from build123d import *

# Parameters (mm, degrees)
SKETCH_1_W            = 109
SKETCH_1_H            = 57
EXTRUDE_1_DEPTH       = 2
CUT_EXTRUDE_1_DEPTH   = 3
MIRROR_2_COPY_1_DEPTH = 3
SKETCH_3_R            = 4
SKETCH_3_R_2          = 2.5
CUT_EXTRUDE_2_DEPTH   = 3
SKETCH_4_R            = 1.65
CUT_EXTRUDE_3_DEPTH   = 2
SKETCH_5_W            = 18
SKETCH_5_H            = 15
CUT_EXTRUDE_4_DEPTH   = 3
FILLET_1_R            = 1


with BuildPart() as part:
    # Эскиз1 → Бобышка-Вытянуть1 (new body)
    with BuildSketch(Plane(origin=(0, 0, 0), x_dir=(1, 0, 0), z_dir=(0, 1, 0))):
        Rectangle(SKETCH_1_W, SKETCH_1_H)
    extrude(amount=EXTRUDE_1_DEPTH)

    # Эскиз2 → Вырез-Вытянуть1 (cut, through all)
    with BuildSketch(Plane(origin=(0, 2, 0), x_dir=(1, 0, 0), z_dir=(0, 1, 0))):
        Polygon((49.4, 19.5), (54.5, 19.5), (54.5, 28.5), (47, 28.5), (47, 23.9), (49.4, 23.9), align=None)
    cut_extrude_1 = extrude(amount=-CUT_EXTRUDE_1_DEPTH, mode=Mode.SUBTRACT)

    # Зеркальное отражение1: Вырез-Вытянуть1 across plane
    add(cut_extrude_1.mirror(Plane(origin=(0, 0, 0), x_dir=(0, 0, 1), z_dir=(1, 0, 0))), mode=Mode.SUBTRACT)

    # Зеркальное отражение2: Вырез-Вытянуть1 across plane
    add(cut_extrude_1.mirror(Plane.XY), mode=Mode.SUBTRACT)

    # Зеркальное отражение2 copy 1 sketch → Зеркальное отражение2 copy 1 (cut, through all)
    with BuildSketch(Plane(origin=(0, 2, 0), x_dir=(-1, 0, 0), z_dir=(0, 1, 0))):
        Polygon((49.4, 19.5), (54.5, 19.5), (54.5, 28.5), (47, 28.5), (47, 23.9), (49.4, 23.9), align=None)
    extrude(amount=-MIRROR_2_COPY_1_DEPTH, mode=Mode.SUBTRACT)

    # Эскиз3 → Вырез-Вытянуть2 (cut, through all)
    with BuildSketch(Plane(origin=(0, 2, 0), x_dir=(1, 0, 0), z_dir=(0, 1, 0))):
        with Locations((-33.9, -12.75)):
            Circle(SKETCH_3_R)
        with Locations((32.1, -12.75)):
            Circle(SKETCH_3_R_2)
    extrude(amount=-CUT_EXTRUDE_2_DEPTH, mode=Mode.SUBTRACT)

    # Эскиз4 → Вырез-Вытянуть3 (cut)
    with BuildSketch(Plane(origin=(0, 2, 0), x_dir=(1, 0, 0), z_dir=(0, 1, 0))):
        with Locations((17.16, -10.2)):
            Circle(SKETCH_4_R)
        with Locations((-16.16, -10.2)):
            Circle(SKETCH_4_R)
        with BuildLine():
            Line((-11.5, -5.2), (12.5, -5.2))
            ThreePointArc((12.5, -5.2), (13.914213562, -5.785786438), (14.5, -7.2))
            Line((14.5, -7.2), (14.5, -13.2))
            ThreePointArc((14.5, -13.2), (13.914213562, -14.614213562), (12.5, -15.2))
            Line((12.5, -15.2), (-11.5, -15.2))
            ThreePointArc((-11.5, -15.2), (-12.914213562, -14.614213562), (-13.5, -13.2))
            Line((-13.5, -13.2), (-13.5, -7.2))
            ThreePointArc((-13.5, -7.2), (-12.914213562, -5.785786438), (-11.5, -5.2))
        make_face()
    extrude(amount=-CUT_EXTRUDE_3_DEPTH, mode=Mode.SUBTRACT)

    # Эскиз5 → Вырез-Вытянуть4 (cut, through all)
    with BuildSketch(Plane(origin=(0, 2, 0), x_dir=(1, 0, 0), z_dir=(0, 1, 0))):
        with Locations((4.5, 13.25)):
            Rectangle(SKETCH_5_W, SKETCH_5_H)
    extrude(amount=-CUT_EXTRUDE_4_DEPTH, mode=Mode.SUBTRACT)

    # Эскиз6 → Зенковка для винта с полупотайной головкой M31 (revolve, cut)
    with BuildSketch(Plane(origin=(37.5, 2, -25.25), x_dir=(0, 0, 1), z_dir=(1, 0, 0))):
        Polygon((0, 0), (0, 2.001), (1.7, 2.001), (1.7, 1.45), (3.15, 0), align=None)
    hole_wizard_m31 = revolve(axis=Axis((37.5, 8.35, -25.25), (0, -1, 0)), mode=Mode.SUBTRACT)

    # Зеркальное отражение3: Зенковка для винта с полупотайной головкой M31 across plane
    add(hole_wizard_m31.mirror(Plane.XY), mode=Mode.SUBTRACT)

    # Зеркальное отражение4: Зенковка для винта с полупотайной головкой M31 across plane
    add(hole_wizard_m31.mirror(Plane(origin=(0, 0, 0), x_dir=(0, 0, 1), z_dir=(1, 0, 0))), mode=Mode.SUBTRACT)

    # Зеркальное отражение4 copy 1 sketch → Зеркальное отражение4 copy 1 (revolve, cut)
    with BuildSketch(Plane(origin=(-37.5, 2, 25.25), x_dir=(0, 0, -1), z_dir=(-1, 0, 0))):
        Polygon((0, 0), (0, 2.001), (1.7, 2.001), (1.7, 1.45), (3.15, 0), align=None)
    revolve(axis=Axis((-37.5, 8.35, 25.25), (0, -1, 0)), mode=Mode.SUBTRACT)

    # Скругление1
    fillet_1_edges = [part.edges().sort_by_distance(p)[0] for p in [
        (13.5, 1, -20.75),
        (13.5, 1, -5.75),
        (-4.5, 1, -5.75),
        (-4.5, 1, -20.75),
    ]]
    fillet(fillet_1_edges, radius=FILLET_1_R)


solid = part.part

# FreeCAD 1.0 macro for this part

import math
import FreeCAD as App
import Part
import Sketcher

V = App.Vector
Q = App.Units.Quantity


def edges_at(feature, points):
    """Names of the edges that pass closest to the given points."""
    edges = feature.Shape.Edges
    near = lambda p: min(range(len(edges)), key=lambda i: edges[i].distToShape(Part.Vertex(*p))[0])
    return sorted({f"Edge{near(p) + 1}" for p in points})

doc = App.newDocument("Part")
params = doc.addObject("Spreadsheet::Sheet", "Params")
for row, (alias, value) in enumerate([
    ("sketch1_width", "109 mm"),
    ("sketch1_height", "57 mm"),
    ("pad1_length", "2 mm"),
    ("sketch2_height", "9 mm"),
    ("sketch2_width", "5.1 mm"),
    ("sketch2_width2", "7.5 mm"),
    ("sketch2_height2", "4.6 mm"),
    ("sketch3_height", "9 mm"),
    ("sketch3_width", "5.1 mm"),
    ("sketch3_width2", "7.5 mm"),
    ("sketch3_height2", "4.6 mm"),
    ("sketch4_diameter", "8 mm"),
    ("sketch4_diameter2", "5 mm"),
    ("sketch5_radius", "2 mm"),
    ("sketch5_diameter", "3.3 mm"),
    ("sketch5_width", "24 mm"),
    ("sketch5_height", "6 mm"),
    ("pocket4_length", "2 mm"),
    ("sketch6_width", "18 mm"),
    ("sketch6_height", "15 mm"),
    ("sketch7_height", "1.7 mm"),
    ("sketch7_height2", "3.15 mm"),
    ("groove_angle", "360 deg"),
    ("sketch8_height", "1.7 mm"),
    ("sketch8_height2", "3.15 mm"),
    ("groove2_angle", "360 deg"),
    ("fillet_radius", "1 mm"),
], start=1):
    params.set(f"A{row}", alias)
    params.set(f"B{row}", "=" + value)
    params.setAlias(f"B{row}", alias)

body = doc.addObject("PartDesign::Body", "Body")

# Sketch on XZ plane
sketch1 = body.newObject("Sketcher::SketchObject", "Sketch")
sketch1.AttachmentSupport = (doc.getObject("XZ_Plane"), [""])
sketch1.MapMode = "FlatFace"
sketch1.addGeometry([
    Part.LineSegment(V(-54, -28, 0), V(-54, 28, 0)),
    Part.LineSegment(V(-54, 28, 0), V(54, 28, 0)),
    Part.LineSegment(V(54, 28, 0), V(54, -28, 0)),
    Part.LineSegment(V(54, -28, 0), V(-54, -28, 0)),
], False)
sketch1.addConstraint([
    Sketcher.Constraint("Coincident", 0, 2, 1, 1),
    Sketcher.Constraint("Coincident", 1, 2, 2, 1),
    Sketcher.Constraint("Coincident", 2, 2, 3, 1),
    Sketcher.Constraint("Coincident", 3, 2, 0, 1),
    Sketcher.Constraint("Vertical", 0),
    Sketcher.Constraint("Horizontal", 1),
    Sketcher.Constraint("Vertical", 2),
    Sketcher.Constraint("Horizontal", 3),
    Sketcher.Constraint("Symmetric", 0, 2, 2, 2, -1, 1),
    Sketcher.Constraint("DistanceX", 1, 1, 1, 2, 109.0),
    Sketcher.Constraint("DistanceY", 0, 1, 0, 2, 57.0),
])
sketch1.setExpression("Constraints[9]", "Params.sketch1_width")
sketch1.setExpression("Constraints[10]", "Params.sketch1_height")
pad1 = body.newObject("PartDesign::Pad", "Pad")
pad1.Profile = sketch1
pad1.setExpression("Length", "Params.pad1_length")
pad1.Reversed = True

# Sketch on XZ plane
sketch2 = body.newObject("Sketcher::SketchObject", "Sketch001")
sketch2.AttachmentSupport = (doc.getObject("XZ_Plane"), [""])
sketch2.MapMode = "FlatFace"
sketch2.AttachmentOffset = App.Placement(V(0, 0, -2), App.Rotation())
sketch2.addGeometry([
    Part.LineSegment(V(49.4, -19.5, 0), V(54.5, -19.5, 0)),  # 0
    Part.LineSegment(V(54.5, -19.5, 0), V(54.5, -28.5, 0)),  # 1
    Part.LineSegment(V(54.5, -28.5, 0), V(47, -28.5, 0)),  # 2
    Part.LineSegment(V(47, -28.5, 0), V(47, -23.9, 0)),  # 3
    Part.LineSegment(V(47, -23.9, 0), V(49.4, -23.9, 0)),  # 4
    Part.LineSegment(V(49.4, -23.9, 0), V(49.4, -19.5, 0)),  # 5
], False)
sketch2.addConstraint([
    Sketcher.Constraint("Coincident", 0, 2, 1, 1),
    Sketcher.Constraint("Coincident", 1, 2, 2, 1),
    Sketcher.Constraint("Coincident", 2, 2, 3, 1),
    Sketcher.Constraint("Coincident", 3, 2, 4, 1),
    Sketcher.Constraint("Coincident", 4, 2, 5, 1),
    Sketcher.Constraint("Coincident", 5, 2, 0, 1),
    Sketcher.Constraint("Horizontal", 0),
    Sketcher.Constraint("Vertical", 1),
    Sketcher.Constraint("Horizontal", 2),
    Sketcher.Constraint("Vertical", 3),
    Sketcher.Constraint("Horizontal", 4),
    Sketcher.Constraint("Vertical", 5),
    Sketcher.Constraint("DistanceY", 1, 2, 1, 1, 9.0),
    Sketcher.Constraint("DistanceX", 0, 1, 0, 2, 5.1),
    Sketcher.Constraint("DistanceX", 2, 2, 2, 1, 7.5),
    Sketcher.Constraint("DistanceY", 3, 1, 3, 2, 4.6),
    Sketcher.Constraint("DistanceX", -1, 1, 2, 2, 47.0),
    Sketcher.Constraint("DistanceY", 0, 2, -1, 1, 19.5),
])
sketch2.setExpression("Constraints[12]", "Params.sketch2_height")
sketch2.setExpression("Constraints[13]", "Params.sketch2_width")
sketch2.setExpression("Constraints[14]", "Params.sketch2_width2")
sketch2.setExpression("Constraints[15]", "Params.sketch2_height2")
pocket1 = body.newObject("PartDesign::Pocket", "Pocket")
pocket1.Profile = sketch2
pocket1.Type = "ThroughAll"
pocket1.Reversed = True
doc.recompute()

mirrored = body.newObject("PartDesign::Mirrored", "Mirrored")
mirrored.Originals = [pocket1]
mirrored.MirrorPlane = (doc.getObject("YZ_Plane"), [""])
body.Tip = mirrored
doc.recompute()

mirrored2 = body.newObject("PartDesign::Mirrored", "Mirrored001")
mirrored2.Originals = [pocket1]
mirrored2.MirrorPlane = (doc.getObject("XY_Plane"), [""])
body.Tip = mirrored2

# Sketch on XZ plane
sketch3 = body.newObject("Sketcher::SketchObject", "Sketch002")
sketch3.AttachmentSupport = (doc.getObject("XZ_Plane"), [""])
sketch3.MapMode = "FlatFace"
sketch3.AttachmentOffset = App.Placement(V(0, 0, -2), App.Rotation())
sketch3.addGeometry([
    Part.LineSegment(V(-49.4, 19.5, 0), V(-54.5, 19.5, 0)),  # 0
    Part.LineSegment(V(-54.5, 19.5, 0), V(-54.5, 28.5, 0)),  # 1
    Part.LineSegment(V(-54.5, 28.5, 0), V(-47, 28.5, 0)),  # 2
    Part.LineSegment(V(-47, 28.5, 0), V(-47, 23.9, 0)),  # 3
    Part.LineSegment(V(-47, 23.9, 0), V(-49.4, 23.9, 0)),  # 4
    Part.LineSegment(V(-49.4, 23.9, 0), V(-49.4, 19.5, 0)),  # 5
], False)
sketch3.addConstraint([
    Sketcher.Constraint("Coincident", 0, 2, 1, 1),
    Sketcher.Constraint("Coincident", 1, 2, 2, 1),
    Sketcher.Constraint("Coincident", 2, 2, 3, 1),
    Sketcher.Constraint("Coincident", 3, 2, 4, 1),
    Sketcher.Constraint("Coincident", 4, 2, 5, 1),
    Sketcher.Constraint("Coincident", 5, 2, 0, 1),
    Sketcher.Constraint("Horizontal", 0),
    Sketcher.Constraint("Vertical", 1),
    Sketcher.Constraint("Horizontal", 2),
    Sketcher.Constraint("Vertical", 3),
    Sketcher.Constraint("Horizontal", 4),
    Sketcher.Constraint("Vertical", 5),
    Sketcher.Constraint("DistanceY", 1, 1, 1, 2, 9.0),
    Sketcher.Constraint("DistanceX", 0, 2, 0, 1, 5.1),
    Sketcher.Constraint("DistanceX", 2, 1, 2, 2, 7.5),
    Sketcher.Constraint("DistanceY", 3, 2, 3, 1, 4.6),
    Sketcher.Constraint("DistanceX", 2, 2, -1, 1, 47.0),
    Sketcher.Constraint("DistanceY", -1, 1, 0, 2, 19.5),
])
sketch3.setExpression("Constraints[12]", "Params.sketch3_height")
sketch3.setExpression("Constraints[13]", "Params.sketch3_width")
sketch3.setExpression("Constraints[14]", "Params.sketch3_width2")
sketch3.setExpression("Constraints[15]", "Params.sketch3_height2")
pocket2 = body.newObject("PartDesign::Pocket", "Pocket001")
pocket2.Profile = sketch3
pocket2.Type = "ThroughAll"
pocket2.Reversed = True

# Sketch on XZ plane
sketch4 = body.newObject("Sketcher::SketchObject", "Sketch003")
sketch4.AttachmentSupport = (doc.getObject("XZ_Plane"), [""])
sketch4.MapMode = "FlatFace"
sketch4.AttachmentOffset = App.Placement(V(0, 0, -2), App.Rotation())
sketch4.addGeometry([
    Part.Circle(V(-33.9, 12.8, 0), V(0, 0, 1), 4),
    Part.Circle(V(32.1, 12.8, 0), V(0, 0, 1), 2.5),
], False)
sketch4.addConstraint([
    Sketcher.Constraint("Horizontal", 0, 3, 1, 3),
    Sketcher.Constraint("Diameter", 0, 8.0),
    Sketcher.Constraint("Diameter", 1, 5.0),
    Sketcher.Constraint("DistanceX", 0, 3, 1, 3, 66.0),
    Sketcher.Constraint("DistanceX", 0, 3, -1, 1, 33.9),
    Sketcher.Constraint("DistanceY", -1, 1, 0, 3, 12.75),
])
sketch4.setExpression("Constraints[1]", "Params.sketch4_diameter")
sketch4.setExpression("Constraints[2]", "Params.sketch4_diameter2")
pocket3 = body.newObject("PartDesign::Pocket", "Pocket002")
pocket3.Profile = sketch4
pocket3.Type = "ThroughAll"
pocket3.Reversed = True

# Sketch on XZ plane
sketch5 = body.newObject("Sketcher::SketchObject", "Sketch004")
sketch5.AttachmentSupport = (doc.getObject("XZ_Plane"), [""])
sketch5.MapMode = "FlatFace"
sketch5.AttachmentOffset = App.Placement(V(0, 0, -2), App.Rotation())
sketch5.addGeometry([
    Part.Circle(V(17.2, 10.2, 0), V(0, 0, 1), 1.6),  # 0
    Part.Circle(V(-16.2, 10.2, 0), V(0, 0, 1), 1.6),  # 1
    Part.LineSegment(V(12.5, 5.2, 0), V(-11.5, 5.2, 0)),  # 2
    Part.ArcOfCircle(Part.Circle(V(-11.5, 7.2, 0), V(0, 0, 1), 2), math.radians(-180), math.radians(-90)),  # 3
    Part.LineSegment(V(-13.5, 7.2, 0), V(-13.5, 13.2, 0)),  # 4
    Part.ArcOfCircle(Part.Circle(V(-11.5, 13.2, 0), V(0, 0, 1), 2), math.radians(90), math.radians(180)),  # 5
    Part.LineSegment(V(-11.5, 15.2, 0), V(12.5, 15.2, 0)),  # 6
    Part.ArcOfCircle(Part.Circle(V(12.5, 13.2, 0), V(0, 0, 1), 2), math.radians(0), math.radians(90)),  # 7
    Part.LineSegment(V(14.5, 13.2, 0), V(14.5, 7.2, 0)),  # 8
    Part.ArcOfCircle(Part.Circle(V(12.5, 7.2, 0), V(0, 0, 1), 2), math.radians(-90), math.radians(0)),  # 9
], False)
sketch5.addConstraint([
    Sketcher.Constraint("Tangent", 2, 2, 3, 2),
    Sketcher.Constraint("Tangent", 3, 1, 4, 1),
    Sketcher.Constraint("Tangent", 4, 2, 5, 2),
    Sketcher.Constraint("Tangent", 5, 1, 6, 1),
    Sketcher.Constraint("Tangent", 6, 2, 7, 2),
    Sketcher.Constraint("Tangent", 7, 1, 8, 1),
    Sketcher.Constraint("Tangent", 8, 2, 9, 2),
    Sketcher.Constraint("Tangent", 9, 1, 2, 1),
    Sketcher.Constraint("Horizontal", 2),
    Sketcher.Constraint("Vertical", 4),
    Sketcher.Constraint("Horizontal", 6),
    Sketcher.Constraint("Vertical", 8),
    Sketcher.Constraint("Equal", 0, 1),
    Sketcher.Constraint("Equal", 3, 5),
    Sketcher.Constraint("Equal", 5, 7),
    Sketcher.Constraint("Equal", 7, 9),
    Sketcher.Constraint("Horizontal", 0, 3, 1, 3),
    Sketcher.Constraint("Radius", 3, 2.0),
    Sketcher.Constraint("Diameter", 0, 3.3),
    Sketcher.Constraint("DistanceX", 2, 2, 2, 1, 24.0),
    Sketcher.Constraint("DistanceY", 4, 1, 4, 2, 6.0),
    Sketcher.Constraint("DistanceY", 3, 3, 1, 3, 3.0),
    Sketcher.Constraint("DistanceY", -1, 1, 0, 3, 10.2),
    Sketcher.Constraint("DistanceX", 3, 3, -1, 1, 11.5),
    Sketcher.Constraint("DistanceX", -1, 1, 0, 3, 17.16),
    Sketcher.Constraint("DistanceX", 1, 3, -1, 1, 16.16),
])
sketch5.setExpression("Constraints[17]", "Params.sketch5_radius")
sketch5.setExpression("Constraints[18]", "Params.sketch5_diameter")
sketch5.setExpression("Constraints[19]", "Params.sketch5_width")
sketch5.setExpression("Constraints[20]", "Params.sketch5_height")
pocket4 = body.newObject("PartDesign::Pocket", "Pocket003")
pocket4.Profile = sketch5
pocket4.setExpression("Length", "Params.pocket4_length")
pocket4.Reversed = True

# Sketch on XZ plane
sketch6 = body.newObject("Sketcher::SketchObject", "Sketch005")
sketch6.AttachmentSupport = (doc.getObject("XZ_Plane"), [""])
sketch6.MapMode = "FlatFace"
sketch6.AttachmentOffset = App.Placement(V(0, 0, -2), App.Rotation())
sketch6.addGeometry([
    Part.LineSegment(V(-4, -21, 0), V(-4, -6, 0)),
    Part.LineSegment(V(-4, -6, 0), V(14, -6, 0)),
    Part.LineSegment(V(14, -6, 0), V(14, -21, 0)),
    Part.LineSegment(V(14, -21, 0), V(-4, -21, 0)),
], False)
sketch6.addConstraint([
    Sketcher.Constraint("Coincident", 0, 2, 1, 1),
    Sketcher.Constraint("Coincident", 1, 2, 2, 1),
    Sketcher.Constraint("Coincident", 2, 2, 3, 1),
    Sketcher.Constraint("Coincident", 3, 2, 0, 1),
    Sketcher.Constraint("Vertical", 0),
    Sketcher.Constraint("Horizontal", 1),
    Sketcher.Constraint("Vertical", 2),
    Sketcher.Constraint("Horizontal", 3),
    Sketcher.Constraint("DistanceX", 1, 1, 1, 2, 18.0),
    Sketcher.Constraint("DistanceY", 0, 1, 0, 2, 15.0),
    Sketcher.Constraint("DistanceX", 0, 2, -1, 1, 4.5),
    Sketcher.Constraint("DistanceY", 0, 2, -1, 1, 5.75),
])
sketch6.setExpression("Constraints[8]", "Params.sketch6_width")
sketch6.setExpression("Constraints[9]", "Params.sketch6_height")
pocket5 = body.newObject("PartDesign::Pocket", "Pocket004")
pocket5.Profile = sketch6
pocket5.Type = "ThroughAll"
pocket5.Reversed = True

# Sketch on YZ plane
sketch7 = body.newObject("Sketcher::SketchObject", "Sketch006")
sketch7.AttachmentSupport = (doc.getObject("YZ_Plane"), [""])
sketch7.MapMode = "FlatFace"
sketch7.AttachmentOffset = App.Placement(V(0, 0, 37.5), App.Rotation())
sketch7.addGeometry([
    Part.LineSegment(V(0, -25.2, 0), V(2, -25.2, 0)),  # 0
    Part.LineSegment(V(2, -25.2, 0), V(2, -22.1, 0)),  # 1
    Part.LineSegment(V(2, -22.1, 0), V(0.6, -23.6, 0)),  # 2
    Part.LineSegment(V(0.6, -23.6, 0), V(0, -23.6, 0)),  # 3
    Part.LineSegment(V(0, -23.6, 0), V(0, -25.2, 0)),  # 4
], False)
sketch7.addGeometry(Part.LineSegment(V(2, -25.2, 0), V(0, -25.2, 0)), True)  # axis
sketch7.addConstraint([
    Sketcher.Constraint("Coincident", 0, 2, 1, 1),
    Sketcher.Constraint("Coincident", 1, 2, 2, 1),
    Sketcher.Constraint("Coincident", 2, 2, 3, 1),
    Sketcher.Constraint("Coincident", 3, 2, 4, 1),
    Sketcher.Constraint("Coincident", 4, 2, 0, 1),
    Sketcher.Constraint("Horizontal", 0),
    Sketcher.Constraint("Vertical", 1),
    Sketcher.Constraint("Horizontal", 3),
    Sketcher.Constraint("Vertical", 4),
    Sketcher.Constraint("Horizontal", 5),
    Sketcher.Constraint("Coincident", 5, 1, 0, 2),
    Sketcher.Constraint("Vertical", 3, 2, 5, 2),
    Sketcher.Constraint("Angle", 2, Q("-135 deg")),
    Sketcher.Constraint("DistanceY", 4, 2, 4, 1, 1.7),
    Sketcher.Constraint("DistanceX", -1, 1, 0, 2, 2.0),
    Sketcher.Constraint("DistanceY", 1, 1, 1, 2, 3.15),
    Sketcher.Constraint("DistanceY", 1, 2, -1, 1, 22.1),
    Sketcher.Constraint("DistanceX", 0, 1, 0, 2, 2.001),
])
sketch7.setExpression("Constraints[13]", "Params.sketch7_height")
sketch7.setExpression("Constraints[15]", "Params.sketch7_height2")
groove = body.newObject("PartDesign::Groove", "Groove")
groove.Profile = sketch7
groove.ReferenceAxis = (sketch7, ["Axis0"])
groove.setExpression("Angle", "Params.groove_angle")
doc.recompute()

mirrored3 = body.newObject("PartDesign::Mirrored", "Mirrored002")
mirrored3.Originals = [groove]
mirrored3.MirrorPlane = (doc.getObject("XY_Plane"), [""])
body.Tip = mirrored3
doc.recompute()

mirrored4 = body.newObject("PartDesign::Mirrored", "Mirrored003")
mirrored4.Originals = [groove]
mirrored4.MirrorPlane = (doc.getObject("YZ_Plane"), [""])
body.Tip = mirrored4

# Sketch on YZ plane
sketch8 = body.newObject("Sketcher::SketchObject", "Sketch007")
sketch8.AttachmentSupport = (doc.getObject("YZ_Plane"), [""])
sketch8.MapMode = "FlatFace"
sketch8.AttachmentOffset = App.Placement(V(0, 0, -37.5), App.Rotation())
sketch8.addGeometry([
    Part.LineSegment(V(0, 25.2, 0), V(2, 25.2, 0)),  # 0
    Part.LineSegment(V(2, 25.2, 0), V(2, 22.1, 0)),  # 1
    Part.LineSegment(V(2, 22.1, 0), V(0.6, 23.6, 0)),  # 2
    Part.LineSegment(V(0.6, 23.6, 0), V(0, 23.6, 0)),  # 3
    Part.LineSegment(V(0, 23.6, 0), V(0, 25.2, 0)),  # 4
], False)
sketch8.addGeometry(Part.LineSegment(V(2, 25.2, 0), V(0, 25.2, 0)), True)  # axis
sketch8.addConstraint([
    Sketcher.Constraint("Coincident", 0, 2, 1, 1),
    Sketcher.Constraint("Coincident", 1, 2, 2, 1),
    Sketcher.Constraint("Coincident", 2, 2, 3, 1),
    Sketcher.Constraint("Coincident", 3, 2, 4, 1),
    Sketcher.Constraint("Coincident", 4, 2, 0, 1),
    Sketcher.Constraint("Horizontal", 0),
    Sketcher.Constraint("Vertical", 1),
    Sketcher.Constraint("Horizontal", 3),
    Sketcher.Constraint("Vertical", 4),
    Sketcher.Constraint("Horizontal", 5),
    Sketcher.Constraint("Coincident", 5, 1, 0, 2),
    Sketcher.Constraint("Vertical", 3, 2, 5, 2),
    Sketcher.Constraint("Angle", 2, Q("135 deg")),
    Sketcher.Constraint("DistanceY", 4, 1, 4, 2, 1.7),
    Sketcher.Constraint("DistanceX", -1, 1, 0, 2, 2.0),
    Sketcher.Constraint("DistanceY", 1, 2, 1, 1, 3.15),
    Sketcher.Constraint("DistanceY", -1, 1, 1, 2, 22.1),
    Sketcher.Constraint("DistanceX", 0, 1, 0, 2, 2.001),
])
sketch8.setExpression("Constraints[13]", "Params.sketch8_height")
sketch8.setExpression("Constraints[15]", "Params.sketch8_height2")
groove2 = body.newObject("PartDesign::Groove", "Groove001")
groove2.Profile = sketch8
groove2.ReferenceAxis = (sketch8, ["Axis0"])
groove2.setExpression("Angle", "Params.groove2_angle")
doc.recompute()

fillet = body.newObject("PartDesign::Fillet", "Fillet")
fillet.Base = (groove2, edges_at(groove2, [
    (13.5, 1, -20.75),
    (13.5, 1, -5.75),
    (-4.5, 1, -5.75),
    (-4.5, 1, -20.75),
]))
fillet.setExpression("Radius", "Params.fillet_radius")

doc.recompute()
